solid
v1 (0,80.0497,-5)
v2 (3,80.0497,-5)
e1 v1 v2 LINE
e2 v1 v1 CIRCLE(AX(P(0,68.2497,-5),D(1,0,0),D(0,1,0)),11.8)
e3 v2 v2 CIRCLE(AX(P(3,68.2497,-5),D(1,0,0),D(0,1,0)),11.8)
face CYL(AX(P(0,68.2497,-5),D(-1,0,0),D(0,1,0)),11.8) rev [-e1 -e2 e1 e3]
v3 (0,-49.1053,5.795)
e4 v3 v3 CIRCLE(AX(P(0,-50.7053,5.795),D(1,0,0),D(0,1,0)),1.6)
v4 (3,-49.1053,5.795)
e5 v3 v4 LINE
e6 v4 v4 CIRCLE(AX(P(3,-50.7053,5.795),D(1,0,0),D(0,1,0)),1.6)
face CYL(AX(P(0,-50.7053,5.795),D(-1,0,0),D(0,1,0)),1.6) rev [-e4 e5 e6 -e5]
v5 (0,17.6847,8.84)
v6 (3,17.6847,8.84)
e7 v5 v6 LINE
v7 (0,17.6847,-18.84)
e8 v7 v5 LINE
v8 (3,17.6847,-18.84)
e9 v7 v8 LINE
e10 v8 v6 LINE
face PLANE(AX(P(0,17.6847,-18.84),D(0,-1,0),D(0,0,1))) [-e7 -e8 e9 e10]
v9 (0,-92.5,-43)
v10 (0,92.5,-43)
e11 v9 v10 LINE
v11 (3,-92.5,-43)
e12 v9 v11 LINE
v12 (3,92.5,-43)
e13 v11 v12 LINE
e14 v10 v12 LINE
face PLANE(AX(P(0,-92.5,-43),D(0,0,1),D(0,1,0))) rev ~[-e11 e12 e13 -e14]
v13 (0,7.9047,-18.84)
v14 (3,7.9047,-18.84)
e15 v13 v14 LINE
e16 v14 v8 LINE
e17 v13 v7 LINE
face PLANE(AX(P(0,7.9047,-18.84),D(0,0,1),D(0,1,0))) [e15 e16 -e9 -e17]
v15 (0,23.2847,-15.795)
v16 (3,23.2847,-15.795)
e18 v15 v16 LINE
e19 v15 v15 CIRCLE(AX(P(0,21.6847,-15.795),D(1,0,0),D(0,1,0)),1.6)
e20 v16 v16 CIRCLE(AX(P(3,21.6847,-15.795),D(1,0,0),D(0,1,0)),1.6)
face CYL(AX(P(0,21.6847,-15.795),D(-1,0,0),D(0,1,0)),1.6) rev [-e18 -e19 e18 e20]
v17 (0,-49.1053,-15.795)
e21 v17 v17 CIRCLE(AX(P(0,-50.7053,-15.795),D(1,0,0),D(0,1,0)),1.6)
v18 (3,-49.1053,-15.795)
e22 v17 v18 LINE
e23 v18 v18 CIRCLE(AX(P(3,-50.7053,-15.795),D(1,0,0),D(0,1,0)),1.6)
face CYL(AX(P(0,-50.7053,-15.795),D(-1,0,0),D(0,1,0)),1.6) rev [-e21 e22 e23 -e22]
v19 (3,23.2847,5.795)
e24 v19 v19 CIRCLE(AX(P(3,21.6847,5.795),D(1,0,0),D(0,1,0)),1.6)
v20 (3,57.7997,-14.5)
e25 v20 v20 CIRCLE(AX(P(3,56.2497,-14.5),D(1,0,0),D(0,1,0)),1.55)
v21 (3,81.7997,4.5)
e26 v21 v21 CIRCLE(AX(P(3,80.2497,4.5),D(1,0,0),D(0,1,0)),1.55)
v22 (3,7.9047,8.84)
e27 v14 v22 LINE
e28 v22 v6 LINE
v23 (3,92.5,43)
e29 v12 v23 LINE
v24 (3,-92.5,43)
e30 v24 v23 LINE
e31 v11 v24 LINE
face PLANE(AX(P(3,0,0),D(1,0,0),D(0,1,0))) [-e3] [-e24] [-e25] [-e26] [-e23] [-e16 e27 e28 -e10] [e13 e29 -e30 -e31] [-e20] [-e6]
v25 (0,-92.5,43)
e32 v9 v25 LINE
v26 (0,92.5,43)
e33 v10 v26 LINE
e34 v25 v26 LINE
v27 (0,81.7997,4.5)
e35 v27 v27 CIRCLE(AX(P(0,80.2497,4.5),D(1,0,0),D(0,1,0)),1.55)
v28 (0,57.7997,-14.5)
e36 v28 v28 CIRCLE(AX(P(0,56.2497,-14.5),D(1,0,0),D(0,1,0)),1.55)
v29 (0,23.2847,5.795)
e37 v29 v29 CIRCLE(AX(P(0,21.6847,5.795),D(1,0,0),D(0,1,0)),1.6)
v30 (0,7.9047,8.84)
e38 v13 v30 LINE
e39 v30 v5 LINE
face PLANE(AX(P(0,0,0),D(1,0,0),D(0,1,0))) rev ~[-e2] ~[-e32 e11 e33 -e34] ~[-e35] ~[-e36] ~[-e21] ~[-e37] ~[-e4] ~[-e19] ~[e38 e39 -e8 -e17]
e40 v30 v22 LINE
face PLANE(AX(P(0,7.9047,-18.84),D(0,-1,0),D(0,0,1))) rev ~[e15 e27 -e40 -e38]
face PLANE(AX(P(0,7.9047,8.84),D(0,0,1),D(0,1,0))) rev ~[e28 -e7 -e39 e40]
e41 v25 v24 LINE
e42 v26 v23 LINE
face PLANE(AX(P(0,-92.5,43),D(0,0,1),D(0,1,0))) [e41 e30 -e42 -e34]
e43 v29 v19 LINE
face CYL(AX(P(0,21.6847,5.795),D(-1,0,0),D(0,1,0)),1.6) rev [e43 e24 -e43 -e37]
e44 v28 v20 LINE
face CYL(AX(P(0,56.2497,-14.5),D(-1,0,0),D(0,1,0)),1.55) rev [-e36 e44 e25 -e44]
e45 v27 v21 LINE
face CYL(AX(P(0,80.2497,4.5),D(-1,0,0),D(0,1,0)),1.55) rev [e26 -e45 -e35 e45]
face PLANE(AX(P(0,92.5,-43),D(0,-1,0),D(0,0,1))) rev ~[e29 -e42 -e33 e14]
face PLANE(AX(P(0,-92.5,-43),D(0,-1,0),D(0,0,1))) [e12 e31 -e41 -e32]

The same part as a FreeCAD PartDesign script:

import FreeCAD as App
import Part
import Sketcher
from FreeCAD import Vector
Q = App.Units.Quantity


def add_polygon(sketch, points):
    """Adds a closed chain of lines whose ends are joined by coincident constraints."""
    first, n = sketch.GeometryCount, len(points)
    for a, b in zip(points, points[1:] + points[:1]):
        sketch.addGeometry(Part.LineSegment(App.Vector(*a, 0), App.Vector(*b, 0)), False)
    for i in range(n):
        sketch.addConstraint(Sketcher.Constraint("Coincident", first + i, 2, first + (i + 1) % n, 1))

doc = App.newDocument("Part")
params = doc.addObject("Spreadsheet::Sheet", "Params")
for row, (alias, value) in enumerate([
    ("sketch1_diameter", "3.2 mm"),
    ("sketch1_diameter2", "3.1 mm"),
    ("sketch1_diameter3", "23.6 mm"),
    ("sketch1_width", "185 mm"),
    ("sketch1_height", "86 mm"),
    ("pad1_length", "3 mm"),
], start=1):
    params.set(f"A{row}", alias)
    params.set(f"B{row}", "=" + value)
    params.setAlias(f"B{row}", alias)

body = doc.addObject("PartDesign::Body", "Body")

sketch1 = doc.addObject("Sketcher::SketchObject", "Sketch")
body.addObject(sketch1)
sketch1.AttachmentSupport = (doc.YZ_Plane, [""])
sketch1.MapMode = "FlatFace"
add_polygon(sketch1, [(-92.5, 43), (-92.5, -43), (92.5, -43), (92.5, 43)])
sketch1.addGeometry(Part.Circle(Vector(-50.7, -15.8, 0), Vector(0, 0, 1), 1.6), False)
sketch1.addGeometry(Part.Circle(Vector(21.7, -15.8, 0), Vector(0, 0, 1), 1.6), False)
sketch1.addGeometry(Part.Circle(Vector(56.2, -14.5, 0), Vector(0, 0, 1), 1.6), False)
add_polygon(sketch1, [(17.7, -18.8), (7.9, -18.8), (7.9, 8.8), (17.7, 8.8)])
sketch1.addGeometry(Part.Circle(Vector(-50.7, 5.8, 0), Vector(0, 0, 1), 1.6), False)
sketch1.addGeometry(Part.Circle(Vector(68.2, -5, 0), Vector(0, 0, 1), 11.8), False)
sketch1.addGeometry(Part.Circle(Vector(21.7, 5.8, 0), Vector(0, 0, 1), 1.6), False)
sketch1.addGeometry(Part.Circle(Vector(80.2, 4.5, 0), Vector(0, 0, 1), 1.6), False)
sketch1.addConstraint([
    Sketcher.Constraint("Vertical", 0),
    Sketcher.Constraint("Horizontal", 1),
    Sketcher.Constraint("Vertical", 2),
    Sketcher.Constraint("Horizontal", 3),
    Sketcher.Constraint("Horizontal", 7),
    Sketcher.Constraint("Vertical", 8),
    Sketcher.Constraint("Horizontal", 9),
    Sketcher.Constraint("Vertical", 10),
    Sketcher.Constraint("Equal", 4, 5),
    Sketcher.Constraint("Equal", 5, 11),
    Sketcher.Constraint("Equal", 11, 13),
    Sketcher.Constraint("Equal", 6, 14),
    Sketcher.Constraint("Symmetric", 0, 2, 2, 2, -1, 1),
    Sketcher.Constraint("Horizontal", 4, 3, 5, 3),
    Sketcher.Constraint("Horizontal", 11, 3, 13, 3),
    Sketcher.Constraint("Vertical", 4, 3, 11, 3),
    Sketcher.Constraint("Vertical", 5, 3, 13, 3),
    Sketcher.Constraint("Diameter", 4, Q("3.2 mm")),
    Sketcher.Constraint("Diameter", 6, Q("3.1 mm")),
    Sketcher.Constraint("Diameter", 12, Q("23.6 mm")),
    Sketcher.Constraint("DistanceX", 1, 1, 1, 2, Q("185 mm")),
    Sketcher.Constraint("DistanceY", 0, 2, 0, 1, Q("86 mm")),
    Sketcher.Constraint("DistanceY", 12, 3, -1, 1, Q("5 mm")),
    Sketcher.Constraint("DistanceX", 6, 3, 12, 3, Q("12 mm")),
    Sketcher.Constraint("DistanceX", 12, 3, 14, 3, Q("12 mm")),
    Sketcher.Constraint("DistanceY", 6, 3, 14, 3, Q("19 mm")),
    Sketcher.Constraint("DistanceX", 9, 2, 13, 3, Q("4 mm")),
    Sketcher.Constraint("DistanceX", 7, 2, 7, 1, Q("9.78 mm")),
    Sketcher.Constraint("DistanceY", 8, 1, 8, 2, Q("27.68 mm")),
    Sketcher.Constraint("DistanceY", 6, 3, -1, 1, Q("14.5 mm")),
    Sketcher.Constraint("DistanceY", 7, 2, -1, 1, Q("18.84 mm")),
    Sketcher.Constraint("DistanceX", 4, 3, 5, 3, Q("72.39 mm")),
    Sketcher.Constraint("DistanceY", 4, 3, 11, 3, Q("21.59 mm")),
    Sketcher.Constraint("DistanceY", 4, 3, -1, 1, Q("15.795 mm")),
    Sketcher.Constraint("DistanceX", 5, 3, 6, 3, Q("34.565 mm")),
    Sketcher.Constraint("DistanceX", 4, 3, -1, 1, Q("50.7053 mm")),
])
sketch1.setExpression("Constraints[25]", "Params.sketch1_diameter")
sketch1.setExpression("Constraints[26]", "Params.sketch1_diameter2")
sketch1.setExpression("Constraints[27]", "Params.sketch1_diameter3")
sketch1.setExpression("Constraints[28]", "Params.sketch1_width")
sketch1.setExpression("Constraints[29]", "Params.sketch1_height")
pad1 = doc.addObject("PartDesign::Pad", "Pad")
body.addObject(pad1)
pad1.Profile = sketch1
pad1.setExpression("Length", "Params.pad1_length")

doc.recompute()
